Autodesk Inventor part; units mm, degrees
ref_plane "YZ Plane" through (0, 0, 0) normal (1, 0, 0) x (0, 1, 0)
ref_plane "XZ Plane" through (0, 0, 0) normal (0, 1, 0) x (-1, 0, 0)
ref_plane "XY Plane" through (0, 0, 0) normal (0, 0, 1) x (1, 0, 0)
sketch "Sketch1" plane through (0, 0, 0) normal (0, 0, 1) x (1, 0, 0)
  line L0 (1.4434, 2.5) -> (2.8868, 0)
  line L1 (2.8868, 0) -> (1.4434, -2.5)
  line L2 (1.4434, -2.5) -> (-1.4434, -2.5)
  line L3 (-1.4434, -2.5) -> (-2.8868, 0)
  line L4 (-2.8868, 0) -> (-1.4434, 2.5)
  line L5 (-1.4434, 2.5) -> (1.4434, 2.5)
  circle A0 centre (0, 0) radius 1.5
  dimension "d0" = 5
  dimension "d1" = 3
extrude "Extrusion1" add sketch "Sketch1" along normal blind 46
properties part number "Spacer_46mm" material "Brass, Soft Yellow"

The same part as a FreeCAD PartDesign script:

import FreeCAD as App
import Part
import Sketcher
Q = App.Units.Quantity


def add_polygon(sketch, points):
    """Adds a closed chain of lines whose ends are joined by coincident constraints."""
    first, n = sketch.GeometryCount, len(points)
    for a, b in zip(points, points[1:] + points[:1]):
        sketch.addGeometry(Part.LineSegment(App.Vector(*a, 0), App.Vector(*b, 0)), False)
    for i in range(n):
        sketch.addConstraint(Sketcher.Constraint("Coincident", first + i, 2, first + (i + 1) % n, 1))

doc = App.newDocument("Part")
body = doc.addObject("PartDesign::Body", "Body")

# Sketch on XY plane
sketch1 = doc.addObject("Sketcher::SketchObject", "Sketch")
body.addObject(sketch1)
sketch1.AttachmentSupport = (doc.XY_Plane, [""])
sketch1.MapMode = "FlatFace"
add_polygon(sketch1, [(2.8868, 0), (1.4434, 2.5), (-1.4434, 2.5), (-2.8868, 0), (-1.4434, -2.5), (1.4434, -2.5)])  # lines 0-5
sketch1.addGeometry(Part.Circle(App.Vector(0, 0, 0), App.Vector(0, 0, 1), 1.5), False)  # 6
sketch1.addConstraint(Sketcher.Constraint("Horizontal", 1))
sketch1.addConstraint(Sketcher.Constraint("Horizontal", 4))
sketch1.addConstraint(Sketcher.Constraint("Coincident", 6, 3, -1, 1))
sketch1.addConstraint(Sketcher.Constraint("Symmetric", 0, 2, 3, 2, -1, 1))
sketch1.addConstraint(Sketcher.Constraint("Symmetric", 2, 2, 5, 2, -1, 1))
sketch1.addConstraint(Sketcher.Constraint("PointOnObject", 2, 2, -1))
sketch1.addConstraint(Sketcher.Constraint("Parallel", 2, 5))
sketch1.addConstraint(Sketcher.Constraint("Vertical", 1, 2, 3, 2))
sketch1.addConstraint(Sketcher.Constraint("Diameter", 6, Q("3 mm")))
sketch1.addConstraint(Sketcher.Constraint("DistanceY", 3, 2, 1, 2, Q("5 mm")))
sketch1.addConstraint(Sketcher.Constraint("Angle", 0, Q("120.0004 deg")))
sketch1.addConstraint(Sketcher.Constraint("DistanceX", 1, 2, 1, 1, Q("2.8868 mm")))
pad1 = doc.addObject("PartDesign::Pad", "Pad")
body.addObject(pad1)
pad1.Profile = sketch1
pad1.Length = 46

doc.recompute()
